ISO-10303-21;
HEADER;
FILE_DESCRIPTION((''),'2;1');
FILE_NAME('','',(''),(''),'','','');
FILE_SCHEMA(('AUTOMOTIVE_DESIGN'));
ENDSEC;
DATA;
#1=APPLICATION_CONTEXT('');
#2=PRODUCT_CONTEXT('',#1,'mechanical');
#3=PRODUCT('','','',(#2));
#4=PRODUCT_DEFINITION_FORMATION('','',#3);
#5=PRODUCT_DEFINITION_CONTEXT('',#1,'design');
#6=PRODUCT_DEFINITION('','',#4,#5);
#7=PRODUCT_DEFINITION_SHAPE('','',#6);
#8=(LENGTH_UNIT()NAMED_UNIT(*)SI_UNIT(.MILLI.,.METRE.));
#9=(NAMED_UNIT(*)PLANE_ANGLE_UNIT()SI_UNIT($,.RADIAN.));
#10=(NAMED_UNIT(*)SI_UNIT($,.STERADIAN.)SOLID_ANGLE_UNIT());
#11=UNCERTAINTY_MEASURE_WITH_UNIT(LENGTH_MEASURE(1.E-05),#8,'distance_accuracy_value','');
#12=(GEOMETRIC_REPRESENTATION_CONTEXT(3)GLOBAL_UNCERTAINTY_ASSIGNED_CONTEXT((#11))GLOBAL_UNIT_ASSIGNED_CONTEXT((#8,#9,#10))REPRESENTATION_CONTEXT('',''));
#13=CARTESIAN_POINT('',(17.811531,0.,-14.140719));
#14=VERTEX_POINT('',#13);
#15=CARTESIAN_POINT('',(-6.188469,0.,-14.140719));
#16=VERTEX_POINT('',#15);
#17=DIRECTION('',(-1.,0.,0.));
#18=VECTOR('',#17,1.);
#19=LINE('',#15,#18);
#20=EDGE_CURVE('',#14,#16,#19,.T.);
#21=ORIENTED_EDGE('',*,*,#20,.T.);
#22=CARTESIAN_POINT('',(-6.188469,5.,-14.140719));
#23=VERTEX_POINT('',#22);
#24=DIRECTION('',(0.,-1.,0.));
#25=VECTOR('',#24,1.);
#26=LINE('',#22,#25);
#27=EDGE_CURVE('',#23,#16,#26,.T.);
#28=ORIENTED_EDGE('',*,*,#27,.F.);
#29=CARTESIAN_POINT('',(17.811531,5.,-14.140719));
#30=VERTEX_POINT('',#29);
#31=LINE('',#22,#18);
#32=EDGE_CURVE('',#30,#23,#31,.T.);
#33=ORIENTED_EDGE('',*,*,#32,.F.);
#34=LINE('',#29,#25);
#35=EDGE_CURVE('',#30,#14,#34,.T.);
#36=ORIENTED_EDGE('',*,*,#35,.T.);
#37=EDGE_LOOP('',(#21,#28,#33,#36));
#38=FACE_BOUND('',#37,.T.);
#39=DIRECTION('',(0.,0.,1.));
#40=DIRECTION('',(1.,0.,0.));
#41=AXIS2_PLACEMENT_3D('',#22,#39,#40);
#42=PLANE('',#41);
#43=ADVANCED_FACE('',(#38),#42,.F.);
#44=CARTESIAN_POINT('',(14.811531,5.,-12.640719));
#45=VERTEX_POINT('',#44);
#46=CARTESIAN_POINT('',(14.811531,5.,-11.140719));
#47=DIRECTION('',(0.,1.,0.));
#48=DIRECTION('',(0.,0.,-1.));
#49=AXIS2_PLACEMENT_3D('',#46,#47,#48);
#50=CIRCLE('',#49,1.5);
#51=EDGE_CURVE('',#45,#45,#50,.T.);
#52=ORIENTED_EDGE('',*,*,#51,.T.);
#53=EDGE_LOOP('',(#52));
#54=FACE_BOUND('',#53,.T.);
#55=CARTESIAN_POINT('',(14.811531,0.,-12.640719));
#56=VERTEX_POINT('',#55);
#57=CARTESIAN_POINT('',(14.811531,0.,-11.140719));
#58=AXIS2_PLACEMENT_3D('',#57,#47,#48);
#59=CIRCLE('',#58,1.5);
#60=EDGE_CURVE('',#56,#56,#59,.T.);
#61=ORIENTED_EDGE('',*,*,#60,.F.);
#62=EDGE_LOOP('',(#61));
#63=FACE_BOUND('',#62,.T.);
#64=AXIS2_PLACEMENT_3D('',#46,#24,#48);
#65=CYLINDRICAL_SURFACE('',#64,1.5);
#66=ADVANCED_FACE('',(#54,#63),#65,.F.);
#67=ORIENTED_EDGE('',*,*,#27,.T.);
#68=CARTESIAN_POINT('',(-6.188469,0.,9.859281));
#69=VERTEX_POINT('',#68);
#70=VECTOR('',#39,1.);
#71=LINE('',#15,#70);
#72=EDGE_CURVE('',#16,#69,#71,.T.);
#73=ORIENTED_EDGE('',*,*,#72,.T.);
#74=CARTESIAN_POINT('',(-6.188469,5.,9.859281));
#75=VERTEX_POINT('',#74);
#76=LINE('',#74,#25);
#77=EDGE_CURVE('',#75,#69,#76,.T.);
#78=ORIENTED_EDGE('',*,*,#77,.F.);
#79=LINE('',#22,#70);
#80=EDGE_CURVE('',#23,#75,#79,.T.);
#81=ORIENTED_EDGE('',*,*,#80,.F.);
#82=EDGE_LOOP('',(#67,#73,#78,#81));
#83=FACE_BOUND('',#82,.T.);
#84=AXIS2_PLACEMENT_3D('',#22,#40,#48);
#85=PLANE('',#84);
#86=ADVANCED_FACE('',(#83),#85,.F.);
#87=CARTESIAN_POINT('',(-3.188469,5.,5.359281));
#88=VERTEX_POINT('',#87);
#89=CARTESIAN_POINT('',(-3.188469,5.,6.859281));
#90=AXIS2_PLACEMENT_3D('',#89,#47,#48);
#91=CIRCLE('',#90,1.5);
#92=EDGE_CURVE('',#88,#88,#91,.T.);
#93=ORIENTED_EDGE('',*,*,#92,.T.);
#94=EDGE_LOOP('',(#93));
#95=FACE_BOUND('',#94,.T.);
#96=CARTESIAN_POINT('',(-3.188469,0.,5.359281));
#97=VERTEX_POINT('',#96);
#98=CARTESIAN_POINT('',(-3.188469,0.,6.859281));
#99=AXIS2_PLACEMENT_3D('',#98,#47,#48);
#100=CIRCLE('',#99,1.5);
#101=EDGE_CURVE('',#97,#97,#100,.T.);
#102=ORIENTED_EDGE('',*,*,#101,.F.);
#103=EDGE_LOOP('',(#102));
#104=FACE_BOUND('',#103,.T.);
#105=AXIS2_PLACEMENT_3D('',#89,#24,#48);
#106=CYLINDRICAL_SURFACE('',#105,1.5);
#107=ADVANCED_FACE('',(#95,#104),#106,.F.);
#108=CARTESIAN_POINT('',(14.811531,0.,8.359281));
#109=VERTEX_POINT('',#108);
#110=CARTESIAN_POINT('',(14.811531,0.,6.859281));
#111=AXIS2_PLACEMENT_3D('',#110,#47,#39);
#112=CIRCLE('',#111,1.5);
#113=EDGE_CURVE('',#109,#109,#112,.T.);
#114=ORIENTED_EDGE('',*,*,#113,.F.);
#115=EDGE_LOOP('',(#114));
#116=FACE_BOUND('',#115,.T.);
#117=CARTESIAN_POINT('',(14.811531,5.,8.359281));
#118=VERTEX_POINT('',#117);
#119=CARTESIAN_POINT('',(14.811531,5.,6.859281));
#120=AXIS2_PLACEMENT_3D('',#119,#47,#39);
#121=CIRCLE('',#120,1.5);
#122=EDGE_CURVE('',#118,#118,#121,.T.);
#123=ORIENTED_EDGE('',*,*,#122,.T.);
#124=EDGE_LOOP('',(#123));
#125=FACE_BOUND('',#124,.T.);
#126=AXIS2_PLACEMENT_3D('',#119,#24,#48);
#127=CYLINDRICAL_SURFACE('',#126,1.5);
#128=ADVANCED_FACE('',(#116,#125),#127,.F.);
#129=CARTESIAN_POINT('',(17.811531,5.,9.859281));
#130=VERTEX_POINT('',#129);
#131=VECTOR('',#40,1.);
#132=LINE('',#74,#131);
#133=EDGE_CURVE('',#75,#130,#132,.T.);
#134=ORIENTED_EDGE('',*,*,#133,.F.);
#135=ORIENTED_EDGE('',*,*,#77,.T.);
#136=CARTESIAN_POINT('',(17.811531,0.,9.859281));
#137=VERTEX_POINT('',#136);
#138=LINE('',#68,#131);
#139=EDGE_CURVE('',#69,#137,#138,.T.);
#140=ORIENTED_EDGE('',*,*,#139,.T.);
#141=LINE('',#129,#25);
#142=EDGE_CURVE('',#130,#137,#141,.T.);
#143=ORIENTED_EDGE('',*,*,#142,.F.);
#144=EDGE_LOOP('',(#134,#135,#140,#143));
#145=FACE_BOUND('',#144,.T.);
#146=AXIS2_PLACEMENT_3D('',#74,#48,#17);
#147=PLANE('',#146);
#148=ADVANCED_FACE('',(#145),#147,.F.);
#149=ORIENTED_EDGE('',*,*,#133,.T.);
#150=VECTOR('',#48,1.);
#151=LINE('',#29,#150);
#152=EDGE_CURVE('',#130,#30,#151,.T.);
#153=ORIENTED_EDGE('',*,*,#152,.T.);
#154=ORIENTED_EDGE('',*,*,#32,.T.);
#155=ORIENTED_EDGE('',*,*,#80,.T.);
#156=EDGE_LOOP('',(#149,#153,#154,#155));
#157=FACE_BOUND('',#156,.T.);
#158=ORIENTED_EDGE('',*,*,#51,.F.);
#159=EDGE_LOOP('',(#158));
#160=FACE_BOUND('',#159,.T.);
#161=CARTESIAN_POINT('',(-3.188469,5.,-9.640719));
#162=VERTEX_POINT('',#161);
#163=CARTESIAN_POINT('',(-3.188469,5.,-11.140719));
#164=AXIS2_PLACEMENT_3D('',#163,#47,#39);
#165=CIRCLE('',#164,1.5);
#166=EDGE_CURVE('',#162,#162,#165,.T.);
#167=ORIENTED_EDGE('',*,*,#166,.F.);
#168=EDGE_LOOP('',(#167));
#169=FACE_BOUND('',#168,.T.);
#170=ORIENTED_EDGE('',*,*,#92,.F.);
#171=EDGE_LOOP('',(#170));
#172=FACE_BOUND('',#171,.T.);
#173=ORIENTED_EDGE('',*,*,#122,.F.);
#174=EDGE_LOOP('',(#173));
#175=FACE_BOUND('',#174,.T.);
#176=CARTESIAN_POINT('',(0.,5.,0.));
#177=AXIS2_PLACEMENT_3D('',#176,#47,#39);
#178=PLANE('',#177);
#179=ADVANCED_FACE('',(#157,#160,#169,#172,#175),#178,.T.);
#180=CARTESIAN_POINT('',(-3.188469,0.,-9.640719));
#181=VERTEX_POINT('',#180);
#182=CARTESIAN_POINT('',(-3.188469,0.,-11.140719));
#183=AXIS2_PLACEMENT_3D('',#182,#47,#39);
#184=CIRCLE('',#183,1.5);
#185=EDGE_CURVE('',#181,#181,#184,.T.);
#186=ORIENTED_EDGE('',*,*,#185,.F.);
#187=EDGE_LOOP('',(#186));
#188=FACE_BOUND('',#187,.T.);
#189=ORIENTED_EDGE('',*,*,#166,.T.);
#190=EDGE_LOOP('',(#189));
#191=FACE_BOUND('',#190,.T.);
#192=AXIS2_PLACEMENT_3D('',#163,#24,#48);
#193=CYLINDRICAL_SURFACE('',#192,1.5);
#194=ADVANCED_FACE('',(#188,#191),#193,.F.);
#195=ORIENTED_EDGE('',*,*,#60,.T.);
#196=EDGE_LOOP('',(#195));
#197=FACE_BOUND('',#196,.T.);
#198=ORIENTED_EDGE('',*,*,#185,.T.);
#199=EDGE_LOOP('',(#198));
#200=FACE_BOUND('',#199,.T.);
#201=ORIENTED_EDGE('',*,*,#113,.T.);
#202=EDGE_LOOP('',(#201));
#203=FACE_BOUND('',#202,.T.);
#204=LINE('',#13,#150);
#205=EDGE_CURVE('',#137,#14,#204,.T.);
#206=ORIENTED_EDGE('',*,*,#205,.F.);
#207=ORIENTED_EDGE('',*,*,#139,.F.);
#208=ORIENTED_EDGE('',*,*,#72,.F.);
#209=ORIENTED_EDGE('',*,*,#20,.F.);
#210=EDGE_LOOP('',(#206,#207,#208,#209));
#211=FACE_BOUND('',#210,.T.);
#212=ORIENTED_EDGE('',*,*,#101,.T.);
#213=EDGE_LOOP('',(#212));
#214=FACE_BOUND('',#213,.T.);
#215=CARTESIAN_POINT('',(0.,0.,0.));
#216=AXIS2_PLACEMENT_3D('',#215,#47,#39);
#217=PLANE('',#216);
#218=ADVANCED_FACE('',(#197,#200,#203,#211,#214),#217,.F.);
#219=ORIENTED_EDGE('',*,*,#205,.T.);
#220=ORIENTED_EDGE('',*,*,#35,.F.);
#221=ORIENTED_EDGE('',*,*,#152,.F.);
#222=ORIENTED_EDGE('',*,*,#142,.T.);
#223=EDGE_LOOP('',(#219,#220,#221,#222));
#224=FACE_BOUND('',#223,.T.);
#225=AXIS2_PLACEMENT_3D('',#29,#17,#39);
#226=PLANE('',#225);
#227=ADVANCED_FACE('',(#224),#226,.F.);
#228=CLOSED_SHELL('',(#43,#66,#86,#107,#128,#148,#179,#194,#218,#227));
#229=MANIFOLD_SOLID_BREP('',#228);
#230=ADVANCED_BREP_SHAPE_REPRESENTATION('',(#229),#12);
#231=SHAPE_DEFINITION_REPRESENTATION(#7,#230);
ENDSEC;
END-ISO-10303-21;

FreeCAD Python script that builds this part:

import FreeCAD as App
import Part
import Sketcher

V = App.Vector


def add_polygon(sketch, points):
    """Adds a closed chain of lines whose ends are joined by coincident constraints."""
    first, n = sketch.GeometryCount, len(points)
    for a, b in zip(points, points[1:] + points[:1]):
        sketch.addGeometry(Part.LineSegment(App.Vector(*a, 0), App.Vector(*b, 0)), False)
    for i in range(n):
        sketch.addConstraint(Sketcher.Constraint("Coincident", first + i, 2, first + (i + 1) % n, 1))

doc = App.newDocument("Part")
body = doc.addObject("PartDesign::Body", "Body")

# Sketch on XZ plane
sketch1 = body.newObject("Sketcher::SketchObject", "Sketch")
sketch1.AttachmentSupport = (doc.getObject("XZ_Plane"), [""])
sketch1.MapMode = "FlatFace"
add_polygon(sketch1, [(-6, -14), (-6, 10), (18, 10), (18, -14)])  # lines 0-3
sketch1.addConstraint([
    Sketcher.Constraint("Vertical", 0),
    Sketcher.Constraint("Horizontal", 1),
    Sketcher.Constraint("Vertical", 2),
    Sketcher.Constraint("Horizontal", 3),
    Sketcher.Constraint("Equal", 3, 0),
    Sketcher.Constraint("DistanceX", 1, 1, 1, 2, 24.0),
    Sketcher.Constraint("DistanceX", 0, 2, -1, 1, 6.188469),
    Sketcher.Constraint("DistanceY", -1, 1, 0, 2, 9.859281),
])
pad1 = body.newObject("PartDesign::Pad", "Pad")
pad1.Profile = sketch1
pad1.Length = 5
pad1.Reversed = True

# Sketch on XZ plane
sketch2 = body.newObject("Sketcher::SketchObject", "Sketch001")
sketch2.AttachmentSupport = (doc.getObject("XZ_Plane"), [""])
sketch2.MapMode = "FlatFace"
sketch2.addGeometry([
    Part.Circle(V(-3.2, -11.1, 0), V(0, 0, 1), 1.5),
    Part.Circle(V(-3.2, 6.9, 0), V(0, 0, 1), 1.5),
    Part.Circle(V(14.8, 6.9, 0), V(0, 0, 1), 1.5),
    Part.Circle(V(14.8, -11.1, 0), V(0, 0, 1), 1.5),
], False)
sketch2.addConstraint([
    Sketcher.Constraint("Equal", 0, 1),
    Sketcher.Constraint("Equal", 1, 2),
    Sketcher.Constraint("Equal", 2, 3),
    Sketcher.Constraint("Horizontal", 1, 3, 2, 3),
    Sketcher.Constraint("Horizontal", 0, 3, 3, 3),
    Sketcher.Constraint("Vertical", 0, 3, 1, 3),
    Sketcher.Constraint("Vertical", 2, 3, 3, 3),
    Sketcher.Constraint("Diameter", 0, 3.0),
    Sketcher.Constraint("DistanceY", 0, 3, 1, 3, 18.0),
    Sketcher.Constraint("DistanceX", 1, 3, 2, 3, 18.0),
    Sketcher.Constraint("DistanceX", 0, 3, -1, 1, 3.188469),
    Sketcher.Constraint("DistanceY", 0, 3, -1, 1, 11.140719),
])
pocket1 = body.newObject("PartDesign::Pocket", "Pocket")
pocket1.Profile = sketch2
pocket1.Type = "ThroughAll"

doc.recompute()
